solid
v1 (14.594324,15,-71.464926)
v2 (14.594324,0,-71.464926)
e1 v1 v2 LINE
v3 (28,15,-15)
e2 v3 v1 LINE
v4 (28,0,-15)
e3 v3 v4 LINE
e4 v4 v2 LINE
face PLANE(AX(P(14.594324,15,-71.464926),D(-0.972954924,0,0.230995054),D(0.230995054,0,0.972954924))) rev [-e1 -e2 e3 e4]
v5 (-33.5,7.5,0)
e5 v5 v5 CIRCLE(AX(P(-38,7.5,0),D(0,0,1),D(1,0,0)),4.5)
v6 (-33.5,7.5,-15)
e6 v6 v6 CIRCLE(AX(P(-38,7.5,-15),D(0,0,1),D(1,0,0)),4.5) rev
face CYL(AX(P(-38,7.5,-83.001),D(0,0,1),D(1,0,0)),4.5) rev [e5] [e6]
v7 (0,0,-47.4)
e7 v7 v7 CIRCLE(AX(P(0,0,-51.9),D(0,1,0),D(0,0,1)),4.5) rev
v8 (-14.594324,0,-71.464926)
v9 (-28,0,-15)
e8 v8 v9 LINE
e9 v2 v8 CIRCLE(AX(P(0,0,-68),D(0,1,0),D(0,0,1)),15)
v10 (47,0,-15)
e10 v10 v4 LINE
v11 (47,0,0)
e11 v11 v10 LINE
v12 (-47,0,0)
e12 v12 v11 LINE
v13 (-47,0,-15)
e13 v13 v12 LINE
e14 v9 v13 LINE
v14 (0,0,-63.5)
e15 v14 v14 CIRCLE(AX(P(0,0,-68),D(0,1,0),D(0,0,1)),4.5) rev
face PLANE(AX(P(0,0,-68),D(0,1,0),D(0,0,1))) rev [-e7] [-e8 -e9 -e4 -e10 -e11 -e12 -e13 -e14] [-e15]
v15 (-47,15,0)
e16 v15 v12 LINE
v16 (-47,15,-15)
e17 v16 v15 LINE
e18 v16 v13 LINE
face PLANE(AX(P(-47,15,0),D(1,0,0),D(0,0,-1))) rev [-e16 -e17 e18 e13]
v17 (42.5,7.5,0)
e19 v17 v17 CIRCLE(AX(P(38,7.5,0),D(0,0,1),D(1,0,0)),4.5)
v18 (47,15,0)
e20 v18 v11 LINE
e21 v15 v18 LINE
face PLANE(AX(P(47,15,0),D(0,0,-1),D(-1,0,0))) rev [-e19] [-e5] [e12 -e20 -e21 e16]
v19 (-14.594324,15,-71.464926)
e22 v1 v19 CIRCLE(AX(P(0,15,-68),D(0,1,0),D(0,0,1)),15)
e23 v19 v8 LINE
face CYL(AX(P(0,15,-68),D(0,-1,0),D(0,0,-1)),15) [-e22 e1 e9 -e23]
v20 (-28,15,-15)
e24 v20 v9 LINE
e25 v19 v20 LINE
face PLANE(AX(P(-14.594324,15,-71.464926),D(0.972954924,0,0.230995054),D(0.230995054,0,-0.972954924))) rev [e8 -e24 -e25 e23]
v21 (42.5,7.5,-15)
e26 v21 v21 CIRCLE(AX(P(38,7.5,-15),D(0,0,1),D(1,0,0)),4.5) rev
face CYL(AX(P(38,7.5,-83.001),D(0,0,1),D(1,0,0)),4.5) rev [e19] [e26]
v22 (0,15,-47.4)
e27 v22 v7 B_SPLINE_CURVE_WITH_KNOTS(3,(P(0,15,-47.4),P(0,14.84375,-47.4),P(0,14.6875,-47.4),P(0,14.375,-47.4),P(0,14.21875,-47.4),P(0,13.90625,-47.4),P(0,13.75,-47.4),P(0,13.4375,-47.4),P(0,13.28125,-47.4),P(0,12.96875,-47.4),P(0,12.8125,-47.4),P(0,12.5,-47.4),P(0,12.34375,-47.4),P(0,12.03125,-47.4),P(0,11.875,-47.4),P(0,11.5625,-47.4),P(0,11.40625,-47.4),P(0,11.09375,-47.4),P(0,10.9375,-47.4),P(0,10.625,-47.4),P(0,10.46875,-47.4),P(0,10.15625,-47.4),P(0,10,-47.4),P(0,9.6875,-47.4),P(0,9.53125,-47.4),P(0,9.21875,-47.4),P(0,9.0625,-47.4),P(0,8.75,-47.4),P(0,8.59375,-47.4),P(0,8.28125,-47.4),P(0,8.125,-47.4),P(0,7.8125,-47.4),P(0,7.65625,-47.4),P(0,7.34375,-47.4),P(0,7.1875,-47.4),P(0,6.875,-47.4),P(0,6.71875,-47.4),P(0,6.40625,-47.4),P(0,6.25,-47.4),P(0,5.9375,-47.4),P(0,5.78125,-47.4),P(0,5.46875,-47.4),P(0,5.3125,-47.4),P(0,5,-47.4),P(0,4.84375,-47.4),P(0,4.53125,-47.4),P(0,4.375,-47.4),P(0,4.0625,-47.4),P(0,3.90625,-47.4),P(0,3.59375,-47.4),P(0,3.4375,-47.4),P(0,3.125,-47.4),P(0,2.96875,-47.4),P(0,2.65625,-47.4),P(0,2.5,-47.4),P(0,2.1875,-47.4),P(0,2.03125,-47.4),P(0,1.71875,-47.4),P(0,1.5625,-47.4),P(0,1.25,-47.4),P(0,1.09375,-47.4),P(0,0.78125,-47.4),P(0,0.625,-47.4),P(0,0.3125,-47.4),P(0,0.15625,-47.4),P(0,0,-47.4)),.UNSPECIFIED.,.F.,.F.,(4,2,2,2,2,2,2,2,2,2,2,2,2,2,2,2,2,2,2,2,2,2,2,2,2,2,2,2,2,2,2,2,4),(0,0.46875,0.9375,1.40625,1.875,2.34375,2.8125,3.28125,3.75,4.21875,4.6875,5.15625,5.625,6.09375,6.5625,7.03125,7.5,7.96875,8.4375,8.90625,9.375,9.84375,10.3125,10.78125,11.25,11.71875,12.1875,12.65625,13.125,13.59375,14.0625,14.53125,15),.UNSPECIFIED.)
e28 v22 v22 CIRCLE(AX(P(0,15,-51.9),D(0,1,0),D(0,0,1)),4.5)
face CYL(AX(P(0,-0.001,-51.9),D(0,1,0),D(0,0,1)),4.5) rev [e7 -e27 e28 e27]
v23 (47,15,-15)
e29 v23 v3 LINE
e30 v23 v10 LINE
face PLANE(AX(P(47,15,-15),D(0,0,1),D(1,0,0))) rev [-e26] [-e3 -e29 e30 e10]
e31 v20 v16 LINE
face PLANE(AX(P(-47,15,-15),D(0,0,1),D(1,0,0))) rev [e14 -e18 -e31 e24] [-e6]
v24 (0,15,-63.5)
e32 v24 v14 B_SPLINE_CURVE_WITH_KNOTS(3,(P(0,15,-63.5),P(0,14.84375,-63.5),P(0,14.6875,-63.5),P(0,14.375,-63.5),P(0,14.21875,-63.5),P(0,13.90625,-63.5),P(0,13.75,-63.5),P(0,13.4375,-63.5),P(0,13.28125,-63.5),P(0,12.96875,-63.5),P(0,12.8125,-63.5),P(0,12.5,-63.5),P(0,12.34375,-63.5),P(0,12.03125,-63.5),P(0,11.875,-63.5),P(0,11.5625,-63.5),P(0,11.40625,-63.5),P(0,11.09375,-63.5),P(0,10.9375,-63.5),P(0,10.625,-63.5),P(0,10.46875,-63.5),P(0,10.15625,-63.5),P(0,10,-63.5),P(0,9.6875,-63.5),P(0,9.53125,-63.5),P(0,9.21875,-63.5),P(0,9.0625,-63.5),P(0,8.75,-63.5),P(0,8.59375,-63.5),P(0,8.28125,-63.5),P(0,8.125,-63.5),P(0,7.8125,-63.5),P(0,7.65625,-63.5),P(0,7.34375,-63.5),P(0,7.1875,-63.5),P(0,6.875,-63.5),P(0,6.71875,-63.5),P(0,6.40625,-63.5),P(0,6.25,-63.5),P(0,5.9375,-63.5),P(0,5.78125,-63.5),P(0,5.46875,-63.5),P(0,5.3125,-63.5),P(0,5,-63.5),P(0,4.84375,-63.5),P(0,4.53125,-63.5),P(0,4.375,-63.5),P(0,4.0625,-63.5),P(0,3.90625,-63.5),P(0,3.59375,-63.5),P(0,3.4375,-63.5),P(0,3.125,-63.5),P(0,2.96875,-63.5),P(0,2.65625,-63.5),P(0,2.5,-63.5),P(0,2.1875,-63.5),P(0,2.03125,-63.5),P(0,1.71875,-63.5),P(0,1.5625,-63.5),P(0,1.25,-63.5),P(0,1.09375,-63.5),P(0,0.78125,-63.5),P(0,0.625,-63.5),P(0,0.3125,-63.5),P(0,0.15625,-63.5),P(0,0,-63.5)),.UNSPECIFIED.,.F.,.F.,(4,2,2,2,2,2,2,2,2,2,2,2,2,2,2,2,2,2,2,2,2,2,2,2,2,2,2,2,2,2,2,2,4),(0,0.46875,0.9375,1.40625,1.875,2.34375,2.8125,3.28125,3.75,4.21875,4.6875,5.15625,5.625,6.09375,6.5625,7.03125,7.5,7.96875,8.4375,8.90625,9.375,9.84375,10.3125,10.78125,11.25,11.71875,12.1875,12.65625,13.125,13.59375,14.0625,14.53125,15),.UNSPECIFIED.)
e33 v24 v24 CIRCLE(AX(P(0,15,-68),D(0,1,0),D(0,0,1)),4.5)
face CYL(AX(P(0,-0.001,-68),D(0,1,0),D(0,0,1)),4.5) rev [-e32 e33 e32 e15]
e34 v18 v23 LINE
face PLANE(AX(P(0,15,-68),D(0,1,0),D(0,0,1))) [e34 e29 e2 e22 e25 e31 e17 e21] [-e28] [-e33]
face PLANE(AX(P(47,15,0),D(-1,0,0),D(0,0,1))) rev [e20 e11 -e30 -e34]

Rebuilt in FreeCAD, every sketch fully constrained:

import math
import FreeCAD as App
import Part
import Sketcher
from FreeCAD import Vector
Q = App.Units.Quantity

doc = App.newDocument("Part")
params = doc.addObject("Spreadsheet::Sheet", "Params")
for row, (alias, value) in enumerate([
    ("sketch1_radius", "15 mm"),
    ("sketch1_width", "94 mm"),
    ("sketch1_width2", "19 mm"),
    ("sketch1_height", "15 mm"),
    ("pad1_length", "15 mm"),
    ("sketch2_diameter", "9 mm"),
    ("sketch3_diameter", "9 mm"),
    ("sketch4_diameter", "9 mm"),
    ("sketch5_diameter", "9 mm"),
], start=1):
    params.set(f"A{row}", alias)
    params.set(f"B{row}", "=" + value)
    params.setAlias(f"B{row}", alias)

body = doc.addObject("PartDesign::Body", "Body")

# Sketch on XZ plane
sketch1 = body.newObject("Sketcher::SketchObject", "Sketch")
sketch1.AttachmentSupport = (doc.getObject("XZ_Plane"), [""])
sketch1.MapMode = "FlatFace"
sketch1.addGeometry([
    Part.LineSegment(Vector(-47, 0, 0), Vector(47, 0, 0)),  # 0
    Part.LineSegment(Vector(47, 0, 0), Vector(47, -15, 0)),  # 1
    Part.LineSegment(Vector(47, -15, 0), Vector(28, -15, 0)),  # 2
    Part.LineSegment(Vector(28, -15, 0), Vector(15, -71, 0)),  # 3
    Part.ArcOfCircle(Part.Circle(Vector(0, -68, 0), Vector(0, 0, 1), 15), math.radians(-167), math.radians(-13)),  # 4
    Part.LineSegment(Vector(-15, -71, 0), Vector(-28, -15, 0)),  # 5
    Part.LineSegment(Vector(-28, -15, 0), Vector(-47, -15, 0)),  # 6
    Part.LineSegment(Vector(-47, -15, 0), Vector(-47, 0, 0)),  # 7
], False)
sketch1.addConstraint([
    Sketcher.Constraint("Coincident", 0, 2, 1, 1),
    Sketcher.Constraint("Coincident", 1, 2, 2, 1),
    Sketcher.Constraint("Coincident", 2, 2, 3, 1),
    Sketcher.Constraint("Tangent", 3, 2, 4, 2),
    Sketcher.Constraint("Tangent", 4, 1, 5, 1),
    Sketcher.Constraint("Coincident", 5, 2, 6, 1),
    Sketcher.Constraint("Coincident", 6, 2, 7, 1),
    Sketcher.Constraint("Coincident", 7, 2, 0, 1),
    Sketcher.Constraint("Horizontal", 0),
    Sketcher.Constraint("Vertical", 1),
    Sketcher.Constraint("Horizontal", 2),
    Sketcher.Constraint("Horizontal", 6),
    Sketcher.Constraint("Vertical", 7),
    Sketcher.Constraint("Symmetric", 0, 2, 7, 2, -1, 1),
    Sketcher.Constraint("Symmetric", 3, 2, 4, 1, -2),
    Sketcher.Constraint("Horizontal", 2, 2, 5, 2),
    Sketcher.Constraint("Radius", 4, Q("15 mm")),
    Sketcher.Constraint("DistanceX", 0, 1, 0, 2, Q("94 mm")),
    Sketcher.Constraint("DistanceX", 2, 2, 2, 1, Q("19 mm")),
    Sketcher.Constraint("DistanceY", 1, 2, 1, 1, Q("15 mm")),
    Sketcher.Constraint("DistanceY", 4, 3, -1, 1, Q("68 mm")),
])
sketch1.setExpression("Constraints[16]", "Params.sketch1_radius")
sketch1.setExpression("Constraints[17]", "Params.sketch1_width")
sketch1.setExpression("Constraints[18]", "Params.sketch1_width2")
sketch1.setExpression("Constraints[19]", "Params.sketch1_height")
pad1 = body.newObject("PartDesign::Pad", "Pad")
pad1.Profile = sketch1
pad1.setExpression("Length", "Params.pad1_length")
pad1.Reversed = True

# Sketch on XY plane
sketch2 = body.newObject("Sketcher::SketchObject", "Sketch001")
sketch2.AttachmentSupport = (doc.getObject("XY_Plane"), [""])
sketch2.MapMode = "FlatFace"
sketch2.addGeometry(Part.Circle(Vector(-38, 7.5, 0), Vector(0, 0, 1), 4.5), False)
sketch2.addConstraint([
    Sketcher.Constraint("Diameter", 0, Q("9 mm")),
    Sketcher.Constraint("DistanceX", 0, 3, -1, 1, Q("38 mm")),
    Sketcher.Constraint("DistanceY", -1, 1, 0, 3, Q("7.5 mm")),
])
sketch2.setExpression("Constraints[0]", "Params.sketch2_diameter")
pocket1 = body.newObject("PartDesign::Pocket", "Pocket")
pocket1.Profile = sketch2
pocket1.Type = "UpToFirst"

# Sketch on XY plane
sketch3 = body.newObject("Sketcher::SketchObject", "Sketch002")
sketch3.AttachmentSupport = (doc.getObject("XY_Plane"), [""])
sketch3.MapMode = "FlatFace"
sketch3.addGeometry(Part.Circle(Vector(38, 7.5, 0), Vector(0, 0, 1), 4.5), False)
sketch3.addConstraint([
    Sketcher.Constraint("Diameter", 0, Q("9 mm")),
    Sketcher.Constraint("DistanceX", -1, 1, 0, 3, Q("38 mm")),
    Sketcher.Constraint("DistanceY", -1, 1, 0, 3, Q("7.5 mm")),
])
sketch3.setExpression("Constraints[0]", "Params.sketch3_diameter")
pocket2 = body.newObject("PartDesign::Pocket", "Pocket001")
pocket2.Profile = sketch3
pocket2.Type = "UpToFirst"

# Sketch on XZ plane
sketch4 = body.newObject("Sketcher::SketchObject", "Sketch003")
sketch4.AttachmentSupport = (doc.getObject("XZ_Plane"), [""])
sketch4.MapMode = "FlatFace"
sketch4.AttachmentOffset = App.Placement(Vector(0, 0, -15), App.Rotation())
sketch4.addGeometry(Part.Circle(Vector(0, -68, 0), Vector(0, 0, 1), 4.5), False)
sketch4.addConstraint([
    Sketcher.Constraint("PointOnObject", 0, 3, -2),
    Sketcher.Constraint("Diameter", 0, Q("9 mm")),
    Sketcher.Constraint("DistanceY", 0, 3, -1, 1, Q("68 mm")),
])
sketch4.setExpression("Constraints[1]", "Params.sketch4_diameter")
pocket3 = body.newObject("PartDesign::Pocket", "Pocket002")
pocket3.Profile = sketch4
pocket3.Type = "UpToFirst"
pocket3.Reversed = True

# Sketch on XZ plane
sketch5 = body.newObject("Sketcher::SketchObject", "Sketch004")
sketch5.AttachmentSupport = (doc.getObject("XZ_Plane"), [""])
sketch5.MapMode = "FlatFace"
sketch5.AttachmentOffset = App.Placement(Vector(0, 0, -15), App.Rotation())
sketch5.addGeometry(Part.Circle(Vector(0, -51.9, 0), Vector(0, 0, 1), 4.5), False)
sketch5.addConstraint([
    Sketcher.Constraint("PointOnObject", 0, 3, -2),
    Sketcher.Constraint("Diameter", 0, Q("9 mm")),
    Sketcher.Constraint("DistanceY", 0, 3, -1, 1, Q("51.9 mm")),
])
sketch5.setExpression("Constraints[1]", "Params.sketch5_diameter")
pocket4 = body.newObject("PartDesign::Pocket", "Pocket003")
pocket4.Profile = sketch5
pocket4.Type = "UpToFirst"
pocket4.Reversed = True

doc.recompute()
